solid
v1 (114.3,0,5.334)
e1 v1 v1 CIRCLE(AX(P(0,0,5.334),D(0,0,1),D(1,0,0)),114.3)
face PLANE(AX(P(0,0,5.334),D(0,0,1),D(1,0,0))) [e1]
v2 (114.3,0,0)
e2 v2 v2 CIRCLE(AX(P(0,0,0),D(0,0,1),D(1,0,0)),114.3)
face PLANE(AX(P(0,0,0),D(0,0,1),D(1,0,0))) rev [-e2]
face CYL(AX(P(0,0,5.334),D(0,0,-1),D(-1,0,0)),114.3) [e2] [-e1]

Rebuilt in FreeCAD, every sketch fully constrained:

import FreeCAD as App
import Part
import Sketcher

V = App.Vector
Q = App.Units.Quantity

doc = App.newDocument("Part")
params = doc.addObject("Spreadsheet::Sheet", "Params")
for row, (alias, value) in enumerate([
    ("sketch1_diameter", "9 in"),
    ("pad1_length", "0.21 in"),
], start=1):
    params.set(f"A{row}", alias)
    params.set(f"B{row}", "=" + value)
    params.setAlias(f"B{row}", alias)

body = doc.addObject("PartDesign::Body", "Body")

# Sketch on XY plane
sketch1 = doc.addObject("Sketcher::SketchObject", "Sketch")
body.addObject(sketch1)
sketch1.AttachmentSupport = (doc.XY_Plane, [""])
sketch1.MapMode = "FlatFace"
sketch1.addGeometry(Part.Circle(V(0, 0, 0), V(0, 0, 1), 114), False)
sketch1.addConstraint(Sketcher.Constraint("Coincident", 0, 3, -1, 1))
sketch1.addConstraint(Sketcher.Constraint("Diameter", 0, Q("9 in")))
sketch1.setExpression("Constraints[1]", "Params.sketch1_diameter")
pad1 = doc.addObject("PartDesign::Pad", "Pad")
body.addObject(pad1)
pad1.Profile = sketch1
pad1.setExpression("Length", "Params.pad1_length")

doc.recompute()
